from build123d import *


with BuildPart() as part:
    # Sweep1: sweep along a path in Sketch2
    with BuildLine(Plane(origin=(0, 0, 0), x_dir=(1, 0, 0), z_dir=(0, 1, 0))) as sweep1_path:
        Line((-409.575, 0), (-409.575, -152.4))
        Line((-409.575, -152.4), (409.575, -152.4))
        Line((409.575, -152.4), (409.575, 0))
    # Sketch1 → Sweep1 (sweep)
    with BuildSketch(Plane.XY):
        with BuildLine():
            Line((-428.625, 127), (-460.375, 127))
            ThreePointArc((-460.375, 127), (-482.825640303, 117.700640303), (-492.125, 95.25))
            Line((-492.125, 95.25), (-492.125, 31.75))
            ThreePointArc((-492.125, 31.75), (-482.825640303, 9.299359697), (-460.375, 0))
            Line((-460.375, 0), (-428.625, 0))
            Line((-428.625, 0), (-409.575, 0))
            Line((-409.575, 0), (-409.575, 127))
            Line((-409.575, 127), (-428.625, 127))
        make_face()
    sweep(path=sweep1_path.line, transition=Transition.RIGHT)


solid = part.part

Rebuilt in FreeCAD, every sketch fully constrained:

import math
import FreeCAD as App
import Part
import Sketcher

V = App.Vector
Q = App.Units.Quantity

doc = App.newDocument("Part")
body = doc.addObject("PartDesign::Body", "Body")

# Sketch on XY plane
sketch1 = body.newObject("Sketcher::SketchObject", "Sketch")
sketch1.AttachmentSupport = (doc.getObject("XY_Plane"), [""])
sketch1.MapMode = "FlatFace"
sketch1.addGeometry([
    Part.ArcOfCircle(Part.Circle(V(-460, 95, 0), V(0, 0, 1), 32), math.radians(90), math.radians(180)),  # 0
    Part.LineSegment(V(-492, 95, 0), V(-492, 32, 0)),  # 1
    Part.ArcOfCircle(Part.Circle(V(-460, 32, 0), V(0, 0, 1), 32), math.radians(180), math.radians(270)),  # 2
    Part.LineSegment(V(-460, 0, 0), V(-410, 0, 0)),  # 3
    Part.LineSegment(V(-410, 0, 0), V(-410, 127, 0)),  # 4
    Part.LineSegment(V(-410, 127, 0), V(-460, 127, 0)),  # 5
], False)
sketch1.addConstraint([
    Sketcher.Constraint("Tangent", 0, 2, 1, 1),
    Sketcher.Constraint("Tangent", 1, 2, 2, 1),
    Sketcher.Constraint("Tangent", 2, 2, 3, 1),
    Sketcher.Constraint("Coincident", 3, 2, 4, 1),
    Sketcher.Constraint("Coincident", 4, 2, 5, 1),
    Sketcher.Constraint("Tangent", 5, 2, 0, 1),
    Sketcher.Constraint("Vertical", 1),
    Sketcher.Constraint("Horizontal", 3),
    Sketcher.Constraint("Vertical", 4),
    Sketcher.Constraint("Horizontal", 5),
    Sketcher.Constraint("Equal", 0, 2),
    Sketcher.Constraint("PointOnObject", 2, 2, -1),
    Sketcher.Constraint("DistanceX", 3, 1, 3, 2, Q("2 in")),
    Sketcher.Constraint("DistanceY", 4, 1, 4, 2, Q("5 in")),
    Sketcher.Constraint("Radius", 0, Q("1.25 in")),
    Sketcher.Constraint("DistanceX", 0, 3, -1, 1, Q("18.125 in")),
])

# Sketch on XZ plane
sketch2 = body.newObject("Sketcher::SketchObject", "Sketch001")
sketch2.AttachmentSupport = (doc.getObject("XZ_Plane"), [""])
sketch2.MapMode = "FlatFace"
sketch2.addGeometry([
    Part.LineSegment(V(-410, 0, 0), V(-410, 152, 0)),
    Part.LineSegment(V(-410, 152, 0), V(410, 152, 0)),
    Part.LineSegment(V(410, 152, 0), V(410, 0, 0)),
], False)
sketch2.addConstraint([
    Sketcher.Constraint("Coincident", 0, 2, 1, 1),
    Sketcher.Constraint("Coincident", 1, 2, 2, 1),
    Sketcher.Constraint("Vertical", 0),
    Sketcher.Constraint("Horizontal", 1),
    Sketcher.Constraint("Vertical", 2),
    Sketcher.Constraint("Symmetric", 0, 1, 2, 2, -1, 1),
    Sketcher.Constraint("PointOnObject", 0, 1, -1),
    Sketcher.Constraint("DistanceY", 0, 1, 0, 2, Q("6 in")),
    Sketcher.Constraint("DistanceX", 1, 1, 1, 2, Q("32.25 in")),
])
doc.recompute()

additivepipe = body.newObject("PartDesign::AdditivePipe", "AdditivePipe")
additivepipe.Profile = sketch1
additivepipe.Spine = (sketch2, ["Edge1", "Edge2", "Edge3"])
additivepipe.Transition = "Right corner"

doc.recompute()
